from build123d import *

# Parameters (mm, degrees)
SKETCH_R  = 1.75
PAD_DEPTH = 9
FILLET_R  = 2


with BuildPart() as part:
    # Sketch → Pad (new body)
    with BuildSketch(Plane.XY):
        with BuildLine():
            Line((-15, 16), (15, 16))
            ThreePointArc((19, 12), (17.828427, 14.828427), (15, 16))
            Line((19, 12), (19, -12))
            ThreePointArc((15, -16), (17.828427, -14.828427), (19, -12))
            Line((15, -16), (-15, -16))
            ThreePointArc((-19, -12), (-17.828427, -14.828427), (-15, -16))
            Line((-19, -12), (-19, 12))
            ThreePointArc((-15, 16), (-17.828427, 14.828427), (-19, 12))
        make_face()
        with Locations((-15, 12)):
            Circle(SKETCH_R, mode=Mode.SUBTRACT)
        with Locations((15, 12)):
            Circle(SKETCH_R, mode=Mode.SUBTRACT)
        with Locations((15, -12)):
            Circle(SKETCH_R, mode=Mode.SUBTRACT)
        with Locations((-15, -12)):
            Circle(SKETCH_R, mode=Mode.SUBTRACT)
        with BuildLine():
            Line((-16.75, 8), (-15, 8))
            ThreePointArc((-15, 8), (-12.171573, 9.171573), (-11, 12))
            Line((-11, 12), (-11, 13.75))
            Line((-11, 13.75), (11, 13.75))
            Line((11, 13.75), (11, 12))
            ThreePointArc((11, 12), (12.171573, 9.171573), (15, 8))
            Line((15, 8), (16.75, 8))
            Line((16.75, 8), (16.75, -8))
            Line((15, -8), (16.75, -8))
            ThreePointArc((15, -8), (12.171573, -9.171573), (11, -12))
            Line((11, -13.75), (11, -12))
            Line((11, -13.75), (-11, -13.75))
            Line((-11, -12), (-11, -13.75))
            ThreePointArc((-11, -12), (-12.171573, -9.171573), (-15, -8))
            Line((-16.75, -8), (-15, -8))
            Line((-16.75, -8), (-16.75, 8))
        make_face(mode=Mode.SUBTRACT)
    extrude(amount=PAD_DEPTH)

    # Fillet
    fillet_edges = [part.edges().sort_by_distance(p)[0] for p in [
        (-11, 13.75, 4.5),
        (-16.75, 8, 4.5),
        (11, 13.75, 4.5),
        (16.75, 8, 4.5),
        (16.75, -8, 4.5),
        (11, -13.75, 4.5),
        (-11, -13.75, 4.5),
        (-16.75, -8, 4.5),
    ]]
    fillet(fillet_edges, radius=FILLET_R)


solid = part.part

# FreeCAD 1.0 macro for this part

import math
import FreeCAD as App
import Part
import Sketcher

V = App.Vector
Q = App.Units.Quantity


def edges_at(feature, points):
    """Names of the edges that pass closest to the given points."""
    edges = feature.Shape.Edges
    near = lambda p: min(range(len(edges)), key=lambda i: edges[i].distToShape(Part.Vertex(*p))[0])
    return sorted({f"Edge{near(p) + 1}" for p in points})

doc = App.newDocument("Part")
body = doc.addObject("PartDesign::Body", "Body")

# Sketch on XY plane
sketch1 = body.newObject("Sketcher::SketchObject", "Sketch")
sketch1.AttachmentSupport = (doc.getObject("XY_Plane"), [""])
sketch1.MapMode = "FlatFace"
sketch1.addGeometry([
    Part.LineSegment(V(15, 16, 0), V(-15, 16, 0)),  # 0
    Part.ArcOfCircle(Part.Circle(V(-15, 12, 0), V(0, 0, 1), 4), math.radians(90), math.radians(180)),  # 1
    Part.LineSegment(V(-19, 12, 0), V(-19, -12, 0)),  # 2
    Part.ArcOfCircle(Part.Circle(V(-15, -12, 0), V(0, 0, 1), 4), math.radians(-180), math.radians(-90)),  # 3
    Part.LineSegment(V(-15, -16, 0), V(15, -16, 0)),  # 4
    Part.ArcOfCircle(Part.Circle(V(15, -12, 0), V(0, 0, 1), 4), math.radians(-90), math.radians(0)),  # 5
    Part.LineSegment(V(19, -12, 0), V(19, 12, 0)),  # 6
    Part.ArcOfCircle(Part.Circle(V(15, 12, 0), V(0, 0, 1), 4), math.radians(0), math.radians(90)),  # 7
    Part.Circle(V(15, -12, 0), V(0, 0, 1), 1.8),  # 8
    Part.Circle(V(-15, -12, 0), V(0, 0, 1), 1.8),  # 9
    Part.Circle(V(15, 12, 0), V(0, 0, 1), 1.8),  # 10
    Part.LineSegment(V(-16.8, 8, 0), V(-15, 8, 0)),  # 11
    Part.ArcOfCircle(Part.Circle(V(-15, 12, 0), V(0, 0, 1), 4), math.radians(-90), math.radians(0)),  # 12
    Part.LineSegment(V(-11, 12, 0), V(-11, 13.8, 0)),  # 13
    Part.LineSegment(V(-11, 13.8, 0), V(11, 13.8, 0)),  # 14
    Part.LineSegment(V(11, 13.8, 0), V(11, 12, 0)),  # 15
    Part.ArcOfCircle(Part.Circle(V(15, 12, 0), V(0, 0, 1), 4), math.radians(-180), math.radians(-90)),  # 16
    Part.LineSegment(V(15, 8, 0), V(16.8, 8, 0)),  # 17
    Part.LineSegment(V(16.8, 8, 0), V(16.8, -8, 0)),  # 18
    Part.LineSegment(V(16.8, -8, 0), V(15, -8, 0)),  # 19
    Part.ArcOfCircle(Part.Circle(V(15, -12, 0), V(0, 0, 1), 4), math.radians(90), math.radians(180)),  # 20
    Part.LineSegment(V(11, -12, 0), V(11, -13.8, 0)),  # 21
    Part.LineSegment(V(11, -13.8, 0), V(-11, -13.8, 0)),  # 22
    Part.LineSegment(V(-11, -13.8, 0), V(-11, -12, 0)),  # 23
    Part.ArcOfCircle(Part.Circle(V(-15, -12, 0), V(0, 0, 1), 4), math.radians(0), math.radians(90)),  # 24
    Part.LineSegment(V(-15, -8, 0), V(-16.8, -8, 0)),  # 25
    Part.LineSegment(V(-16.8, -8, 0), V(-16.8, 8, 0)),  # 26
    Part.Circle(V(-15, 12, 0), V(0, 0, 1), 1.8),  # 27
], False)
sketch1.addConstraint([
    Sketcher.Constraint("Tangent", 0, 2, 1, 1),
    Sketcher.Constraint("Tangent", 1, 2, 2, 1),
    Sketcher.Constraint("Tangent", 2, 2, 3, 1),
    Sketcher.Constraint("Tangent", 3, 2, 4, 1),
    Sketcher.Constraint("Tangent", 4, 2, 5, 1),
    Sketcher.Constraint("Tangent", 5, 2, 6, 1),
    Sketcher.Constraint("Tangent", 6, 2, 7, 1),
    Sketcher.Constraint("Tangent", 7, 2, 0, 1),
    Sketcher.Constraint("Tangent", 11, 2, 12, 1),
    Sketcher.Constraint("Tangent", 12, 2, 13, 1),
    Sketcher.Constraint("Coincident", 13, 2, 14, 1),
    Sketcher.Constraint("Coincident", 14, 2, 15, 1),
    Sketcher.Constraint("Tangent", 15, 2, 16, 1),
    Sketcher.Constraint("Tangent", 16, 2, 17, 1),
    Sketcher.Constraint("Coincident", 17, 2, 18, 1),
    Sketcher.Constraint("Coincident", 18, 2, 19, 1),
    Sketcher.Constraint("Tangent", 19, 2, 20, 1),
    Sketcher.Constraint("Tangent", 20, 2, 21, 1),
    Sketcher.Constraint("Coincident", 21, 2, 22, 1),
    Sketcher.Constraint("Coincident", 22, 2, 23, 1),
    Sketcher.Constraint("Tangent", 23, 2, 24, 1),
    Sketcher.Constraint("Tangent", 24, 2, 25, 1),
    Sketcher.Constraint("Coincident", 25, 2, 26, 1),
    Sketcher.Constraint("Coincident", 26, 2, 11, 1),
    Sketcher.Constraint("Horizontal", 0),
    Sketcher.Constraint("Vertical", 2),
    Sketcher.Constraint("Horizontal", 4),
    Sketcher.Constraint("Vertical", 6),
    Sketcher.Constraint("Horizontal", 11),
    Sketcher.Constraint("Vertical", 13),
    Sketcher.Constraint("Horizontal", 14),
    Sketcher.Constraint("Vertical", 15),
    Sketcher.Constraint("Horizontal", 17),
    Sketcher.Constraint("Vertical", 18),
    Sketcher.Constraint("Horizontal", 19),
    Sketcher.Constraint("Vertical", 21),
    Sketcher.Constraint("Horizontal", 22),
    Sketcher.Constraint("Vertical", 23),
    Sketcher.Constraint("Horizontal", 25),
    Sketcher.Constraint("Vertical", 26),
    Sketcher.Constraint("Coincident", 8, 3, 5, 3),
    Sketcher.Constraint("Coincident", 9, 3, 3, 3),
    Sketcher.Constraint("Coincident", 10, 3, 7, 3),
    Sketcher.Constraint("Coincident", 12, 3, 1, 3),
    Sketcher.Constraint("Coincident", 16, 3, 7, 3),
    Sketcher.Constraint("Coincident", 20, 3, 5, 3),
    Sketcher.Constraint("Coincident", 24, 3, 3, 3),
    Sketcher.Constraint("Coincident", 27, 3, 1, 3),
    Sketcher.Constraint("Equal", 1, 3),
    Sketcher.Constraint("Equal", 3, 5),
    Sketcher.Constraint("Equal", 5, 7),
    Sketcher.Constraint("Equal", 8, 9),
    Sketcher.Constraint("Equal", 9, 10),
    Sketcher.Constraint("Equal", 7, 12),
    Sketcher.Constraint("Equal", 12, 16),
    Sketcher.Constraint("Equal", 16, 20),
    Sketcher.Constraint("Equal", 20, 24),
    Sketcher.Constraint("Equal", 10, 27),
    Sketcher.Constraint("Symmetric", 1, 3, 5, 3, -1, 1),
    Sketcher.Constraint("Equal", 11, 17),
    Sketcher.Constraint("Equal", 25, 13),
    Sketcher.Constraint("Equal", 15, 21),
    Sketcher.Constraint("Radius", 1, Q("4 mm")),
    Sketcher.Constraint("Diameter", 8, Q("3.5 mm")),
    Sketcher.Constraint("DistanceX", 0, 2, 0, 1, Q("30 mm")),
    Sketcher.Constraint("DistanceY", 2, 2, 2, 1, Q("24 mm")),
    Sketcher.Constraint("DistanceX", 11, 1, 11, 2, Q("1.75 mm")),
])
pad1 = body.newObject("PartDesign::Pad", "Pad")
pad1.Profile = sketch1
pad1.Length = 9
doc.recompute()

fillet = body.newObject("PartDesign::Fillet", "Fillet")
fillet.Base = (pad1, edges_at(pad1, [
    (-11, 13.75, 4.5),
    (-16.75, 8, 4.5),
    (11, 13.75, 4.5),
    (16.75, 8, 4.5),
    (16.75, -8, 4.5),
    (11, -13.75, 4.5),
    (-11, -13.75, 4.5),
    (-16.75, -8, 4.5),
]))
fillet.Radius = 2

doc.recompute()
